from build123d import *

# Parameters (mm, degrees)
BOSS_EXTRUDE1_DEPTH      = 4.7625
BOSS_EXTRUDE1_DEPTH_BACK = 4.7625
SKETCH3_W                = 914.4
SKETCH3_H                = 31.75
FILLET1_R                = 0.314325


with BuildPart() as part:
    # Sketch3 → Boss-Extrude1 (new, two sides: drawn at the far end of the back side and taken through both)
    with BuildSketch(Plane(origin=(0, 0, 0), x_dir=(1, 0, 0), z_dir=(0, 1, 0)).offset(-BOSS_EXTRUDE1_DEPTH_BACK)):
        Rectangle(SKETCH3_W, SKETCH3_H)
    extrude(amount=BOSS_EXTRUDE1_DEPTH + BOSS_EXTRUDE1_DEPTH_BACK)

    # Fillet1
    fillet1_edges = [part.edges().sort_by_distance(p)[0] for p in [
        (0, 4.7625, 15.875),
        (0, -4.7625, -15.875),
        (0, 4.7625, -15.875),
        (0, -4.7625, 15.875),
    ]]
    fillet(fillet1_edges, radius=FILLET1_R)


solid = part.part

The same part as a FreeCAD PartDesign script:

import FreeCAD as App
import Part
import Sketcher
Q = App.Units.Quantity


def edges_at(feature, points):
    """Names of the edges that pass closest to the given points."""
    edges = feature.Shape.Edges
    near = lambda p: min(range(len(edges)), key=lambda i: edges[i].distToShape(Part.Vertex(*p))[0])
    return sorted({f"Edge{near(p) + 1}" for p in points})

doc = App.newDocument("Part")
body = doc.addObject("PartDesign::Body", "Body")

sketch1 = doc.addObject("Sketcher::SketchObject", "Sketch")
body.addObject(sketch1)
sketch1.AttachmentSupport = (doc.XZ_Plane, [""])
sketch1.MapMode = "FlatFace"
sketch1.addGeometry([
    Part.LineSegment(App.Vector(-457, -16, 0), App.Vector(-457, 16, 0)),
    Part.LineSegment(App.Vector(-457, 16, 0), App.Vector(457, 16, 0)),
    Part.LineSegment(App.Vector(457, 16, 0), App.Vector(457, -16, 0)),
    Part.LineSegment(App.Vector(457, -16, 0), App.Vector(-457, -16, 0)),
], False)
sketch1.addConstraint([
    Sketcher.Constraint("Coincident", 0, 2, 1, 1),
    Sketcher.Constraint("Coincident", 1, 2, 2, 1),
    Sketcher.Constraint("Coincident", 2, 2, 3, 1),
    Sketcher.Constraint("Coincident", 3, 2, 0, 1),
    Sketcher.Constraint("Vertical", 0),
    Sketcher.Constraint("Horizontal", 1),
    Sketcher.Constraint("Vertical", 2),
    Sketcher.Constraint("Horizontal", 3),
    Sketcher.Constraint("Symmetric", 0, 2, 2, 2, -1, 1),
    Sketcher.Constraint("DistanceX", 1, 1, 1, 2, Q("36 in")),
    Sketcher.Constraint("DistanceY", 0, 1, 0, 2, Q("1.25 in")),
])
pad1 = doc.addObject("PartDesign::Pad", "Pad")
body.addObject(pad1)
pad1.Profile = sketch1
pad1.Type = "TwoLengths"
pad1.Length = Q("0.1875 in")
pad1.Length2 = Q("0.1875 in")
pad1.Reversed = True
doc.recompute()

fillet = doc.addObject("PartDesign::Fillet", "Fillet")
body.addObject(fillet)
fillet.Base = (pad1, edges_at(pad1, [
    (0, 4.763, 15.875),
    (0, -4.763, -15.875),
    (0, 4.763, -15.875),
    (0, -4.763, 15.875),
]))
fillet.Radius = 0.314325

doc.recompute()
